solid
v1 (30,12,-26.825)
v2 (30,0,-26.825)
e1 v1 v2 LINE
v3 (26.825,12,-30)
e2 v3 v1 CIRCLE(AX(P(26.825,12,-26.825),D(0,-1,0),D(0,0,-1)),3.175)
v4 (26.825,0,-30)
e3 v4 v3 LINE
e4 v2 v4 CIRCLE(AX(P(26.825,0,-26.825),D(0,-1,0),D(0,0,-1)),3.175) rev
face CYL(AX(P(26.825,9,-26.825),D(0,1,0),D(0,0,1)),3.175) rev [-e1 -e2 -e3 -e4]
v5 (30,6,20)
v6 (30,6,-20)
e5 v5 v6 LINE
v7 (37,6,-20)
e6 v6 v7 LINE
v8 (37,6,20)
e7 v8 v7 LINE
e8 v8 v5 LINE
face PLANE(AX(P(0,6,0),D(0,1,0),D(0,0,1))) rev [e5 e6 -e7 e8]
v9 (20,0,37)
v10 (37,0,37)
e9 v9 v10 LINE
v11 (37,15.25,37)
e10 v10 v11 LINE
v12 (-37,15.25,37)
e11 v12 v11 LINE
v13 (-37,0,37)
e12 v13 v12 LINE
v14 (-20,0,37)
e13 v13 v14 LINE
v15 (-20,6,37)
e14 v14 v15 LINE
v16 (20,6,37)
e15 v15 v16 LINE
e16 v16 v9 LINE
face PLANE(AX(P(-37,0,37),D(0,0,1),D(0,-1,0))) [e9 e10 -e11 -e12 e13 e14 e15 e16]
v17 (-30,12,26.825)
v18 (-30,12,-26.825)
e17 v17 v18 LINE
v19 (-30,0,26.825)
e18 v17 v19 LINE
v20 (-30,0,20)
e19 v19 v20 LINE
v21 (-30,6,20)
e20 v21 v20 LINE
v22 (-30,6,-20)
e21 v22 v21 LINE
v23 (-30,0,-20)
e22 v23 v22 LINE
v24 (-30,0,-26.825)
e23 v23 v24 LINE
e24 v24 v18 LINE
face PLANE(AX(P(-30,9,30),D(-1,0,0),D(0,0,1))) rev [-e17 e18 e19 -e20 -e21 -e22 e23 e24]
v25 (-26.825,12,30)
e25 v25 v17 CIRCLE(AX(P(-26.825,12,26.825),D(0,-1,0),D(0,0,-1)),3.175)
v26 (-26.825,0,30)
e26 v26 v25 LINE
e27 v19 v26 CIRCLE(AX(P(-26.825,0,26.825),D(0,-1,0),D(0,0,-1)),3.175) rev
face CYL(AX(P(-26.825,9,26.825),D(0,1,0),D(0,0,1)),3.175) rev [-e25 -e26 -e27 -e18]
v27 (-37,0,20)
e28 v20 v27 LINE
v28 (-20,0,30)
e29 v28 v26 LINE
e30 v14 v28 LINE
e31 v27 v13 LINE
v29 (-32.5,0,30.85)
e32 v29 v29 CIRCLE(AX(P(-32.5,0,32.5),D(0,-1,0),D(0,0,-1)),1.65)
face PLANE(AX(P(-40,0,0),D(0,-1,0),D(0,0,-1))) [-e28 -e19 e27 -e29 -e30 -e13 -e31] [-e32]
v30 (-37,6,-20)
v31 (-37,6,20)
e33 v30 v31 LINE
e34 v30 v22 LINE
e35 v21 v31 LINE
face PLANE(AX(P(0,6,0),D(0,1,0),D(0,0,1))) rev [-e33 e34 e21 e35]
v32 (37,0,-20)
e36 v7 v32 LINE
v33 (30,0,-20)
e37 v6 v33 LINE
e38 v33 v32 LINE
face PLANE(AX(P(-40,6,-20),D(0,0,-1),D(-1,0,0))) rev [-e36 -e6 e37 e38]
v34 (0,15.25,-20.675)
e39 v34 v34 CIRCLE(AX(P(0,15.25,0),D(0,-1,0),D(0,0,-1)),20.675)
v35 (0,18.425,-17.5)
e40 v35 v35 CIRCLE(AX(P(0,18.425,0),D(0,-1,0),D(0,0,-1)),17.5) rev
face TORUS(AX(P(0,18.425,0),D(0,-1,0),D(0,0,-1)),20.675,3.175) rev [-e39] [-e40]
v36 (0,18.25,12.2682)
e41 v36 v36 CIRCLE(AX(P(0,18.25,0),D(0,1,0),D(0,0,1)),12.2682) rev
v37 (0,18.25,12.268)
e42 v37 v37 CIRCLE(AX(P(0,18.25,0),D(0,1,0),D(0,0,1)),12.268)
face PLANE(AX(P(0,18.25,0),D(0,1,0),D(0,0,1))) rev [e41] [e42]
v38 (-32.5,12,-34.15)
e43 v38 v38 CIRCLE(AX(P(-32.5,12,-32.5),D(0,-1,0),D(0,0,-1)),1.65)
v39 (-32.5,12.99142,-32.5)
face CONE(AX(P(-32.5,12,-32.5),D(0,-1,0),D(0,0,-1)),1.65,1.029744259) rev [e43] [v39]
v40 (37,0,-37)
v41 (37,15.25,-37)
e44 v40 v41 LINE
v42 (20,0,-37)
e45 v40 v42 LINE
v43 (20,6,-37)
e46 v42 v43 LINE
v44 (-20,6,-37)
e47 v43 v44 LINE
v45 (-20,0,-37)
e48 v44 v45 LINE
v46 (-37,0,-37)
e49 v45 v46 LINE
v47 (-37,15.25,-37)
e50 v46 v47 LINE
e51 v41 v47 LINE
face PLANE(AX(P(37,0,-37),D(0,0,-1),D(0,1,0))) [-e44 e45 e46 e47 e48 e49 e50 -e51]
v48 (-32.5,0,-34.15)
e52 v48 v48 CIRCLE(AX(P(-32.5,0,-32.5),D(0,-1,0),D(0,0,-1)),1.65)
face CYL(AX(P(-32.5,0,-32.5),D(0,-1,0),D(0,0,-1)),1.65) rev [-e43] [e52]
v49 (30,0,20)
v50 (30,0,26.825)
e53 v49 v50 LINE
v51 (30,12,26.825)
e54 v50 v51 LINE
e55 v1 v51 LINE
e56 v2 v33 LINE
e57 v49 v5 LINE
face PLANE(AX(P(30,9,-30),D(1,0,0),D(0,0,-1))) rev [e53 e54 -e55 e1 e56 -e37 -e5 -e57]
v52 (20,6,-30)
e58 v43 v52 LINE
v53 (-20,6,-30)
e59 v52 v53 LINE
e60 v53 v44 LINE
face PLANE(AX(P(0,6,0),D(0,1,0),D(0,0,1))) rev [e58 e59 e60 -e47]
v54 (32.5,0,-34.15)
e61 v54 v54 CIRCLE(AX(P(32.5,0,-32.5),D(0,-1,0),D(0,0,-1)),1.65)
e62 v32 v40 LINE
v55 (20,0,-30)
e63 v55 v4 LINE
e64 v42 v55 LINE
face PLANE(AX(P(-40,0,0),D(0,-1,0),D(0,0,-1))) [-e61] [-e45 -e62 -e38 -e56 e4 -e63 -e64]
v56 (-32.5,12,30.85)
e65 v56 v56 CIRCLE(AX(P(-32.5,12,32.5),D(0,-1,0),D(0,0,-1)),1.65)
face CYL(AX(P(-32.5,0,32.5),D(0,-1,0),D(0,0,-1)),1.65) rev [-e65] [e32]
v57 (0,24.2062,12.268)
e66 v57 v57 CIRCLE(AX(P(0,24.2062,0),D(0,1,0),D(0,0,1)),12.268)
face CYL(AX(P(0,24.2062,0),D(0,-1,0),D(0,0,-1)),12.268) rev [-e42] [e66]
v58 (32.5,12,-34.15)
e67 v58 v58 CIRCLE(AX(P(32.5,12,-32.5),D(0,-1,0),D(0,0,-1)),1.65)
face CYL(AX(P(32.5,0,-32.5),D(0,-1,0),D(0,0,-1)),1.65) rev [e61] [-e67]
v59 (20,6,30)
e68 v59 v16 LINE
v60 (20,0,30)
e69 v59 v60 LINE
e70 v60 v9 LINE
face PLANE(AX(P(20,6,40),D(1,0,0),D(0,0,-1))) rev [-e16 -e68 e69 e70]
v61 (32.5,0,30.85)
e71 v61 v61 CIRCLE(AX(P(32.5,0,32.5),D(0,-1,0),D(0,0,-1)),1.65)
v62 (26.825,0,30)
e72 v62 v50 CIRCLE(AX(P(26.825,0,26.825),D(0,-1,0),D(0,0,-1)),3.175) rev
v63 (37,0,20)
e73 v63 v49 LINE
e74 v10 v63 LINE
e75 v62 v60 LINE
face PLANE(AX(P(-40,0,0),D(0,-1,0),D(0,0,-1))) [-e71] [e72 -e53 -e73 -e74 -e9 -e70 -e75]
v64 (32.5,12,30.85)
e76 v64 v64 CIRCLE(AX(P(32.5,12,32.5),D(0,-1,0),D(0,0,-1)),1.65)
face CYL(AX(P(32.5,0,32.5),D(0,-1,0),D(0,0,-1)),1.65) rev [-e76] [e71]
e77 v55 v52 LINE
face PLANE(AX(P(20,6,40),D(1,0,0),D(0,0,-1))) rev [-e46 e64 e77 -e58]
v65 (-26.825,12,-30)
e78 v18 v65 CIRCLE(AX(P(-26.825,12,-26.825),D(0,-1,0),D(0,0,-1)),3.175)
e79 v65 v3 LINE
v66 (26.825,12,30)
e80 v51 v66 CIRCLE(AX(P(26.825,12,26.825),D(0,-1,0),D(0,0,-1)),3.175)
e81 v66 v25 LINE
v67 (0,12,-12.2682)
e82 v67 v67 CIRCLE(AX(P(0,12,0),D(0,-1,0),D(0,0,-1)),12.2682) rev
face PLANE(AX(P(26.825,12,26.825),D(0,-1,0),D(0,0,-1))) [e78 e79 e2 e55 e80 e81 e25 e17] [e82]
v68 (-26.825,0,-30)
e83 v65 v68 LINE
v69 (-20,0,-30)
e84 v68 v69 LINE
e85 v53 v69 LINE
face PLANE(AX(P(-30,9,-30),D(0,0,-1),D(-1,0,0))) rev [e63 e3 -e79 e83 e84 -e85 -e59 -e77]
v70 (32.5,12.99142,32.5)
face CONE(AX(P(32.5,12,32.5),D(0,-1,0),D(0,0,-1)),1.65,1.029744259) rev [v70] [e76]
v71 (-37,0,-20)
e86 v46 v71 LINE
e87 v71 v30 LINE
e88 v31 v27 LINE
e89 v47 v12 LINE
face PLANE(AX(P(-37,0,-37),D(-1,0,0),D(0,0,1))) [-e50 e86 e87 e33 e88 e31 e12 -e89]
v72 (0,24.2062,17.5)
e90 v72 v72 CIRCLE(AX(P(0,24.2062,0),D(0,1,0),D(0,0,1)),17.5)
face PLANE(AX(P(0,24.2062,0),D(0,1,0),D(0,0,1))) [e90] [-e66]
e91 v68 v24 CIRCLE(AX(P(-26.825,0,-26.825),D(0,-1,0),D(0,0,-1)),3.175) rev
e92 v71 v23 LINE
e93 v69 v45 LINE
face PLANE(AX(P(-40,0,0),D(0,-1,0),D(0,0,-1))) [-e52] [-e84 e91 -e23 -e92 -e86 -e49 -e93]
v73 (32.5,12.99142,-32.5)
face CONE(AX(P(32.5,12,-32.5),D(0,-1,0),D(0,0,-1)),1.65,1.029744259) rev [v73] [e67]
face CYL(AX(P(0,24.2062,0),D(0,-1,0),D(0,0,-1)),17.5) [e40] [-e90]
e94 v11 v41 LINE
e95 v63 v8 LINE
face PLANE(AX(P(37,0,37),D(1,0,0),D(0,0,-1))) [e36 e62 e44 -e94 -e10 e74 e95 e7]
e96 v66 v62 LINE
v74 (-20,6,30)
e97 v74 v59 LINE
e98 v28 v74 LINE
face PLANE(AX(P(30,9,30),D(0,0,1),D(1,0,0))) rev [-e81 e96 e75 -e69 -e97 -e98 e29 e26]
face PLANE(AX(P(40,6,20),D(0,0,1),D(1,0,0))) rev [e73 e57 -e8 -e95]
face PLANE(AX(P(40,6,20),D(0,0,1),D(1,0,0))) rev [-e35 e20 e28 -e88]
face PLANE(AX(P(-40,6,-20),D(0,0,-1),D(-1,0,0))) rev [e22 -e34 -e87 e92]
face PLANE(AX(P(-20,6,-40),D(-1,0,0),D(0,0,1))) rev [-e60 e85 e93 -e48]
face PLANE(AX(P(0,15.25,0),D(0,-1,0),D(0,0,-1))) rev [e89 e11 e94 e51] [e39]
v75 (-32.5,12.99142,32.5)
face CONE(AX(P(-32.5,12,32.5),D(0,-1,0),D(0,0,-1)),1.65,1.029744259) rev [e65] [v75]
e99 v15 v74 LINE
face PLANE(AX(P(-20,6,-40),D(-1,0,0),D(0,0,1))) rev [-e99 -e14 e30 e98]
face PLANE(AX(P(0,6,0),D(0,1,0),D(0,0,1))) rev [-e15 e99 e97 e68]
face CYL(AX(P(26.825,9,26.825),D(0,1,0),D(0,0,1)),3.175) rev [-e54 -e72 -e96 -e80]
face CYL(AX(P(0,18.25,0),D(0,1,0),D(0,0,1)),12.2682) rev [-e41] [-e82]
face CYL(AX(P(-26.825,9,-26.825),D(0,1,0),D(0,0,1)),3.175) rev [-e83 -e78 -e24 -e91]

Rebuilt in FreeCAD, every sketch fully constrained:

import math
import FreeCAD as App
import Part
import Sketcher

V = App.Vector


def edges_at(feature, points):
    """Names of the edges that pass closest to the given points."""
    edges = feature.Shape.Edges
    near = lambda p: min(range(len(edges)), key=lambda i: edges[i].distToShape(Part.Vertex(*p))[0])
    return sorted({f"Edge{near(p) + 1}" for p in points})


def add_polygon(sketch, points):
    """Adds a closed chain of lines whose ends are joined by coincident constraints."""
    first, n = sketch.GeometryCount, len(points)
    for a, b in zip(points, points[1:] + points[:1]):
        sketch.addGeometry(Part.LineSegment(App.Vector(*a, 0), App.Vector(*b, 0)), False)
    for i in range(n):
        sketch.addConstraint(Sketcher.Constraint("Coincident", first + i, 2, first + (i + 1) % n, 1))

doc = App.newDocument("Part")
params = doc.addObject("Spreadsheet::Sheet", "Params")
for row, (alias, value) in enumerate([
    ("sketch1_height", "80 mm"),
    ("sketch1_width", "18.25 mm"),
    ("pad1_length", "40 mm"),
    ("pad1_length2", "40 mm"),
    ("sketch2_width", "40 mm"),
    ("sketch2_height", "80 mm"),
    ("pocket1_length", "6 mm"),
    ("hole_diameter", "24.5364 mm"),
    ("sketch4_diameter", "35 mm"),
    ("pad2_length", "5.9562 mm"),
    ("sketch5_diameter", "35 mm"),
    ("sketch5_width", "80 mm"),
    ("pocket2_length", "3 mm"),
    ("sketch6_width", "80 mm"),
    ("sketch6_height", "40 mm"),
    ("pocket3_length", "6 mm"),
    ("sketch7_width", "60 mm"),
    ("pocket4_length", "9 mm"),
    ("fillet_radius", "3.175 mm"),
    ("sketch8_diameter", "3.3 mm"),
    ("hole2_diameter", "3.3 mm"),
    ("hole2_depth", "12 mm"),
    ("sketch9_width", "74 mm"),
    ("sketch9_width2", "105.14 mm"),
    ("pocket6_length", "3 mm"),
], start=1):
    params.set(f"A{row}", alias)
    params.set(f"B{row}", "=" + value)
    params.setAlias(f"B{row}", alias)

body = doc.addObject("PartDesign::Body", "Body")

sketch1 = doc.addObject("Sketcher::SketchObject", "Sketch")
body.addObject(sketch1)
sketch1.AttachmentSupport = (doc.YZ_Plane, [""])
sketch1.MapMode = "FlatFace"
add_polygon(sketch1, [(18, 40), (0, 40), (0, -40), (18, -40)])
sketch1.addConstraint(Sketcher.Constraint("Horizontal", 0))
sketch1.addConstraint(Sketcher.Constraint("Vertical", 1))
sketch1.addConstraint(Sketcher.Constraint("Horizontal", 2))
sketch1.addConstraint(Sketcher.Constraint("Vertical", 3))
sketch1.addConstraint(Sketcher.Constraint("Symmetric", 0, 2, 1, 2, -1, 1))
sketch1.addConstraint(Sketcher.Constraint("DistanceY", 1, 2, 1, 1, 80.0))
sketch1.addConstraint(Sketcher.Constraint("DistanceX", 0, 2, 0, 1, 18.25))
sketch1.setExpression("Constraints[9]", "Params.sketch1_height")
sketch1.setExpression("Constraints[10]", "Params.sketch1_width")
pad1 = doc.addObject("PartDesign::Pad", "Pad")
body.addObject(pad1)
pad1.Profile = sketch1
pad1.Type = "TwoLengths"
pad1.setExpression("Length", "Params.pad1_length")
pad1.setExpression("Length2", "Params.pad1_length2")

sketch2 = doc.addObject("Sketcher::SketchObject", "Sketch001")
body.addObject(sketch2)
sketch2.AttachmentSupport = (doc.XZ_Plane, [""])
sketch2.MapMode = "FlatFace"
add_polygon(sketch2, [(-20, 40), (-20, -40), (20, -40), (20, 40)])
sketch2.addConstraint(Sketcher.Constraint("Vertical", 0))
sketch2.addConstraint(Sketcher.Constraint("Horizontal", 1))
sketch2.addConstraint(Sketcher.Constraint("Vertical", 2))
sketch2.addConstraint(Sketcher.Constraint("Horizontal", 3))
sketch2.addConstraint(Sketcher.Constraint("Symmetric", 0, 2, 2, 2, -1, 1))
sketch2.addConstraint(Sketcher.Constraint("DistanceX", 1, 1, 1, 2, 40.0))
sketch2.addConstraint(Sketcher.Constraint("DistanceY", 0, 2, 0, 1, 80.0))
sketch2.setExpression("Constraints[9]", "Params.sketch2_width")
sketch2.setExpression("Constraints[10]", "Params.sketch2_height")
pocket1 = doc.addObject("PartDesign::Pocket", "Pocket")
body.addObject(pocket1)
pocket1.Profile = sketch2
pocket1.setExpression("Length", "Params.pocket1_length")

sketch3 = doc.addObject("Sketcher::SketchObject", "Sketch002")
body.addObject(sketch3)
sketch3.AttachmentSupport = (doc.XZ_Plane, [""])
sketch3.MapMode = "FlatFace"
sketch3.AttachmentOffset = App.Placement(V(0, 0, -18.25), App.Rotation())
sketch3.addGeometry(Part.Circle(V(0, 0, 0), V(0, 0, 1), 12), False)
sketch3.addConstraint(Sketcher.Constraint("Coincident", 0, 3, -1, 1))
sketch3.addConstraint(Sketcher.Constraint("Diameter", 0, 24.5364))
doc.recompute()
hole = doc.addObject("PartDesign::Hole", "Hole")
body.addObject(hole)
hole.Profile = sketch3
hole.ThreadType = "None"
hole.setExpression("Diameter", "Params.hole_diameter")
hole.DepthType = "ThroughAll"
hole.Reversed = True

sketch4 = doc.addObject("Sketcher::SketchObject", "Sketch003")
body.addObject(sketch4)
sketch4.AttachmentSupport = (doc.XZ_Plane, [""])
sketch4.MapMode = "FlatFace"
sketch4.AttachmentOffset = App.Placement(V(0, 0, -18.25), App.Rotation())
sketch4.addGeometry(Part.Circle(V(0, 0, 0), V(0, 0, 1), 18), False)
sketch4.addGeometry(Part.Circle(V(0, 0, 0), V(0, 0, 1), 12), False)
sketch4.addConstraint(Sketcher.Constraint("Coincident", 0, 3, -1, 1))
sketch4.addConstraint(Sketcher.Constraint("Coincident", 1, 3, -1, 1))
sketch4.addConstraint(Sketcher.Constraint("Diameter", 0, 35.0))
sketch4.addConstraint(Sketcher.Constraint("Diameter", 1, 24.536))
sketch4.setExpression("Constraints[2]", "Params.sketch4_diameter")
pad2 = doc.addObject("PartDesign::Pad", "Pad001")
body.addObject(pad2)
pad2.Profile = sketch4
pad2.setExpression("Length", "Params.pad2_length")
pad2.Reversed = True

sketch5 = doc.addObject("Sketcher::SketchObject", "Sketch004")
body.addObject(sketch5)
sketch5.AttachmentSupport = (doc.XZ_Plane, [""])
sketch5.MapMode = "FlatFace"
sketch5.AttachmentOffset = App.Placement(V(0, 0, -15.25), App.Rotation())
add_polygon(sketch5, [(-40, -40), (-40, 40), (40, 40), (40, -40)])
sketch5.addGeometry(Part.Circle(V(0, 0, 0), V(0, 0, 1), 18), False)
sketch5.addConstraint(Sketcher.Constraint("Vertical", 0))
sketch5.addConstraint(Sketcher.Constraint("Horizontal", 1))
sketch5.addConstraint(Sketcher.Constraint("Vertical", 2))
sketch5.addConstraint(Sketcher.Constraint("Horizontal", 3))
sketch5.addConstraint(Sketcher.Constraint("Coincident", 4, 3, -1, 1))
sketch5.addConstraint(Sketcher.Constraint("Symmetric", 0, 2, 2, 2, -1, 1))
sketch5.addConstraint(Sketcher.Constraint("Equal", 3, 0))
sketch5.addConstraint(Sketcher.Constraint("Diameter", 4, 35.0))
sketch5.addConstraint(Sketcher.Constraint("DistanceX", 1, 1, 1, 2, 80.0))
sketch5.setExpression("Constraints[11]", "Params.sketch5_diameter")
sketch5.setExpression("Constraints[12]", "Params.sketch5_width")
pocket2 = doc.addObject("PartDesign::Pocket", "Pocket001")
body.addObject(pocket2)
pocket2.Profile = sketch5
pocket2.setExpression("Length", "Params.pocket2_length")

sketch6 = doc.addObject("Sketcher::SketchObject", "Sketch005")
body.addObject(sketch6)
sketch6.AttachmentSupport = (doc.XZ_Plane, [""])
sketch6.MapMode = "FlatFace"
add_polygon(sketch6, [(-40, 20), (-40, -20), (40, -20), (40, 20)])
sketch6.addConstraint(Sketcher.Constraint("Vertical", 0))
sketch6.addConstraint(Sketcher.Constraint("Horizontal", 1))
sketch6.addConstraint(Sketcher.Constraint("Vertical", 2))
sketch6.addConstraint(Sketcher.Constraint("Horizontal", 3))
sketch6.addConstraint(Sketcher.Constraint("Symmetric", 0, 2, 2, 2, -1, 1))
sketch6.addConstraint(Sketcher.Constraint("DistanceX", 1, 1, 1, 2, 80.0))
sketch6.addConstraint(Sketcher.Constraint("DistanceY", 0, 2, 0, 1, 40.0))
sketch6.setExpression("Constraints[9]", "Params.sketch6_width")
sketch6.setExpression("Constraints[10]", "Params.sketch6_height")
pocket3 = doc.addObject("PartDesign::Pocket", "Pocket002")
body.addObject(pocket3)
pocket3.Profile = sketch6
pocket3.setExpression("Length", "Params.pocket3_length")

sketch7 = doc.addObject("Sketcher::SketchObject", "Sketch006")
body.addObject(sketch7)
sketch7.AttachmentSupport = (doc.XZ_Plane, [""])
sketch7.MapMode = "FlatFace"
add_polygon(sketch7, [(-30, 30), (-30, -30), (30, -30), (30, 30)])
sketch7.addConstraint(Sketcher.Constraint("Vertical", 0))
sketch7.addConstraint(Sketcher.Constraint("Horizontal", 1))
sketch7.addConstraint(Sketcher.Constraint("Vertical", 2))
sketch7.addConstraint(Sketcher.Constraint("Horizontal", 3))
sketch7.addConstraint(Sketcher.Constraint("Symmetric", 0, 2, 2, 2, -1, 1))
sketch7.addConstraint(Sketcher.Constraint("Equal", 3, 0))
sketch7.addConstraint(Sketcher.Constraint("DistanceX", 1, 1, 1, 2, 60.0))
sketch7.setExpression("Constraints[10]", "Params.sketch7_width")
pocket4 = doc.addObject("PartDesign::Pocket", "Pocket003")
body.addObject(pocket4)
pocket4.Profile = sketch7
pocket4.setExpression("Length", "Params.pocket4_length")
doc.recompute()

fillet = doc.addObject("PartDesign::Fillet", "Fillet")
body.addObject(fillet)
fillet.Base = (pocket4, edges_at(pocket4, [
    (-30, 4.5, 30),
    (30, 4.5, -30),
    (30, 4.5, 30),
    (-30, 4.5, -30),
    (0, 15.25, -17.5),
]))
fillet.setExpression("Radius", "Params.fillet_radius")

sketch8 = doc.addObject("Sketcher::SketchObject", "Sketch007")
body.addObject(sketch8)
sketch8.AttachmentSupport = (doc.XZ_Plane, [""])
sketch8.MapMode = "FlatFace"
sketch8.addGeometry(Part.Circle(V(-32.5, -32.5, 0), V(0, 0, 1), 1.6), False)
sketch8.addGeometry(Part.Circle(V(32.5, -32.5, 0), V(0, 0, 1), 1.6), False)
sketch8.addGeometry(Part.Circle(V(32.5, 32.5, 0), V(0, 0, 1), 1.6), False)
sketch8.addGeometry(Part.Circle(V(-32.5, 32.5, 0), V(0, 0, 1), 1.6), False)
sketch8.addConstraint(Sketcher.Constraint("Equal", 0, 1))
sketch8.addConstraint(Sketcher.Constraint("Equal", 1, 2))
sketch8.addConstraint(Sketcher.Constraint("Equal", 2, 3))
sketch8.addConstraint(Sketcher.Constraint("Symmetric", 0, 3, 2, 3, -1, 1))
sketch8.addConstraint(Sketcher.Constraint("Symmetric", 1, 3, 3, 3, -1, 1))
sketch8.addConstraint(Sketcher.Constraint("Symmetric", 0, 3, 1, 3, -2))
sketch8.addConstraint(Sketcher.Constraint("Diameter", 0, 3.3))
sketch8.addConstraint(Sketcher.Constraint("DistanceX", 0, 3, 1, 3, 65.0))
sketch8.addConstraint(Sketcher.Constraint("DistanceY", 1, 3, 2, 3, 65.0))
sketch8.setExpression("Constraints[6]", "Params.sketch8_diameter")
doc.recompute()
hole2 = doc.addObject("PartDesign::Hole", "Hole001")
body.addObject(hole2)
hole2.Profile = sketch8
hole2.ThreadType = "None"
hole2.setExpression("Diameter", "Params.hole2_diameter")
hole2.DepthType = "Dimension"
hole2.setExpression("Depth", "Params.hole2_depth")
hole2.DrillPoint = "Angled"
hole2.DrillPointAngle = 118

sketch9 = doc.addObject("Sketcher::SketchObject", "Sketch008")
body.addObject(sketch9)
sketch9.AttachmentSupport = (doc.XZ_Plane, [""])
sketch9.MapMode = "FlatFace"
sketch9.AttachmentOffset = App.Placement(V(0, 0, -15.25), App.Rotation())
add_polygon(sketch9, [(-53, -53), (-53, 53), (53, 53), (53, -53)])
add_polygon(sketch9, [(37, 37), (-37, 37), (-37, -37), (37, -37)])
sketch9.addConstraint(Sketcher.Constraint("Vertical", 0))
sketch9.addConstraint(Sketcher.Constraint("Horizontal", 1))
sketch9.addConstraint(Sketcher.Constraint("Vertical", 2))
sketch9.addConstraint(Sketcher.Constraint("Horizontal", 3))
sketch9.addConstraint(Sketcher.Constraint("Horizontal", 4))
sketch9.addConstraint(Sketcher.Constraint("Vertical", 5))
sketch9.addConstraint(Sketcher.Constraint("Horizontal", 6))
sketch9.addConstraint(Sketcher.Constraint("Vertical", 7))
sketch9.addConstraint(Sketcher.Constraint("Symmetric", 0, 2, 2, 2, -1, 1))
sketch9.addConstraint(Sketcher.Constraint("Symmetric", 4, 2, 6, 2, -1, 1))
sketch9.addConstraint(Sketcher.Constraint("Equal", 3, 0))
sketch9.addConstraint(Sketcher.Constraint("Equal", 6, 5))
sketch9.addConstraint(Sketcher.Constraint("DistanceX", 4, 2, 4, 1, 74.0))
sketch9.addConstraint(Sketcher.Constraint("DistanceX", 1, 1, 1, 2, 105.14))
sketch9.setExpression("Constraints[20]", "Params.sketch9_width")
sketch9.setExpression("Constraints[21]", "Params.sketch9_width2")
pocket5 = doc.addObject("PartDesign::Pocket", "Pocket004")
body.addObject(pocket5)
pocket5.Profile = sketch9
pocket5.Type = "ThroughAll"
pocket5.Reversed = True

sketch10 = doc.addObject("Sketcher::SketchObject", "Sketch009")
body.addObject(sketch10)
sketch10.AttachmentSupport = (doc.XZ_Plane, [""])
sketch10.MapMode = "FlatFace"
sketch10.AttachmentOffset = App.Placement(V(0, 0, -12), App.Rotation())
sketch10.addGeometry(Part.LineSegment(V(26.8, 30, 0), V(-26.8, 30, 0)), False)
sketch10.addGeometry(Part.ArcOfCircle(Part.Circle(V(-26.8, 26.8, 0), V(0, 0, 1), 3.2), math.radians(90), math.radians(180)), False)
sketch10.addGeometry(Part.LineSegment(V(-30, 26.8, 0), V(-30, -26.8, 0)), False)
sketch10.addGeometry(Part.ArcOfCircle(Part.Circle(V(-26.8, -26.8, 0), V(0, 0, 1), 3.2), math.radians(-180), math.radians(-90)), False)
sketch10.addGeometry(Part.LineSegment(V(-26.8, -30, 0), V(26.8, -30, 0)), False)
sketch10.addGeometry(Part.ArcOfCircle(Part.Circle(V(26.8, -26.8, 0), V(0, 0, 1), 3.2), math.radians(-90), math.radians(0)), False)
sketch10.addGeometry(Part.LineSegment(V(30, -26.8, 0), V(30, 26.8, 0)), False)
sketch10.addGeometry(Part.ArcOfCircle(Part.Circle(V(26.8, 26.8, 0), V(0, 0, 1), 3.2), math.radians(0), math.radians(90)), False)
sketch10.addConstraint(Sketcher.Constraint("Tangent", 0, 2, 1, 1))
sketch10.addConstraint(Sketcher.Constraint("Tangent", 1, 2, 2, 1))
sketch10.addConstraint(Sketcher.Constraint("Tangent", 2, 2, 3, 1))
sketch10.addConstraint(Sketcher.Constraint("Tangent", 3, 2, 4, 1))
sketch10.addConstraint(Sketcher.Constraint("Tangent", 4, 2, 5, 1))
sketch10.addConstraint(Sketcher.Constraint("Tangent", 5, 2, 6, 1))
sketch10.addConstraint(Sketcher.Constraint("Tangent", 6, 2, 7, 1))
sketch10.addConstraint(Sketcher.Constraint("Tangent", 7, 2, 0, 1))
sketch10.addConstraint(Sketcher.Constraint("Horizontal", 0))
sketch10.addConstraint(Sketcher.Constraint("Vertical", 2))
sketch10.addConstraint(Sketcher.Constraint("Horizontal", 4))
sketch10.addConstraint(Sketcher.Constraint("Vertical", 6))
sketch10.addConstraint(Sketcher.Constraint("Equal", 1, 3))
sketch10.addConstraint(Sketcher.Constraint("Equal", 3, 5))
sketch10.addConstraint(Sketcher.Constraint("Equal", 5, 7))
sketch10.addConstraint(Sketcher.Constraint("Symmetric", 1, 3, 5, 3, -1, 1))
sketch10.addConstraint(Sketcher.Constraint("Equal", 4, 2))
sketch10.addConstraint(Sketcher.Constraint("DistanceY", -1, 1, 0, 2, 30.0))
sketch10.addConstraint(Sketcher.Constraint("Radius", 1, 3.175))
pocket6 = doc.addObject("PartDesign::Pocket", "Pocket005")
body.addObject(pocket6)
pocket6.Profile = sketch10
pocket6.setExpression("Length", "Params.pocket6_length")
pocket6.Reversed = True

doc.recompute()
